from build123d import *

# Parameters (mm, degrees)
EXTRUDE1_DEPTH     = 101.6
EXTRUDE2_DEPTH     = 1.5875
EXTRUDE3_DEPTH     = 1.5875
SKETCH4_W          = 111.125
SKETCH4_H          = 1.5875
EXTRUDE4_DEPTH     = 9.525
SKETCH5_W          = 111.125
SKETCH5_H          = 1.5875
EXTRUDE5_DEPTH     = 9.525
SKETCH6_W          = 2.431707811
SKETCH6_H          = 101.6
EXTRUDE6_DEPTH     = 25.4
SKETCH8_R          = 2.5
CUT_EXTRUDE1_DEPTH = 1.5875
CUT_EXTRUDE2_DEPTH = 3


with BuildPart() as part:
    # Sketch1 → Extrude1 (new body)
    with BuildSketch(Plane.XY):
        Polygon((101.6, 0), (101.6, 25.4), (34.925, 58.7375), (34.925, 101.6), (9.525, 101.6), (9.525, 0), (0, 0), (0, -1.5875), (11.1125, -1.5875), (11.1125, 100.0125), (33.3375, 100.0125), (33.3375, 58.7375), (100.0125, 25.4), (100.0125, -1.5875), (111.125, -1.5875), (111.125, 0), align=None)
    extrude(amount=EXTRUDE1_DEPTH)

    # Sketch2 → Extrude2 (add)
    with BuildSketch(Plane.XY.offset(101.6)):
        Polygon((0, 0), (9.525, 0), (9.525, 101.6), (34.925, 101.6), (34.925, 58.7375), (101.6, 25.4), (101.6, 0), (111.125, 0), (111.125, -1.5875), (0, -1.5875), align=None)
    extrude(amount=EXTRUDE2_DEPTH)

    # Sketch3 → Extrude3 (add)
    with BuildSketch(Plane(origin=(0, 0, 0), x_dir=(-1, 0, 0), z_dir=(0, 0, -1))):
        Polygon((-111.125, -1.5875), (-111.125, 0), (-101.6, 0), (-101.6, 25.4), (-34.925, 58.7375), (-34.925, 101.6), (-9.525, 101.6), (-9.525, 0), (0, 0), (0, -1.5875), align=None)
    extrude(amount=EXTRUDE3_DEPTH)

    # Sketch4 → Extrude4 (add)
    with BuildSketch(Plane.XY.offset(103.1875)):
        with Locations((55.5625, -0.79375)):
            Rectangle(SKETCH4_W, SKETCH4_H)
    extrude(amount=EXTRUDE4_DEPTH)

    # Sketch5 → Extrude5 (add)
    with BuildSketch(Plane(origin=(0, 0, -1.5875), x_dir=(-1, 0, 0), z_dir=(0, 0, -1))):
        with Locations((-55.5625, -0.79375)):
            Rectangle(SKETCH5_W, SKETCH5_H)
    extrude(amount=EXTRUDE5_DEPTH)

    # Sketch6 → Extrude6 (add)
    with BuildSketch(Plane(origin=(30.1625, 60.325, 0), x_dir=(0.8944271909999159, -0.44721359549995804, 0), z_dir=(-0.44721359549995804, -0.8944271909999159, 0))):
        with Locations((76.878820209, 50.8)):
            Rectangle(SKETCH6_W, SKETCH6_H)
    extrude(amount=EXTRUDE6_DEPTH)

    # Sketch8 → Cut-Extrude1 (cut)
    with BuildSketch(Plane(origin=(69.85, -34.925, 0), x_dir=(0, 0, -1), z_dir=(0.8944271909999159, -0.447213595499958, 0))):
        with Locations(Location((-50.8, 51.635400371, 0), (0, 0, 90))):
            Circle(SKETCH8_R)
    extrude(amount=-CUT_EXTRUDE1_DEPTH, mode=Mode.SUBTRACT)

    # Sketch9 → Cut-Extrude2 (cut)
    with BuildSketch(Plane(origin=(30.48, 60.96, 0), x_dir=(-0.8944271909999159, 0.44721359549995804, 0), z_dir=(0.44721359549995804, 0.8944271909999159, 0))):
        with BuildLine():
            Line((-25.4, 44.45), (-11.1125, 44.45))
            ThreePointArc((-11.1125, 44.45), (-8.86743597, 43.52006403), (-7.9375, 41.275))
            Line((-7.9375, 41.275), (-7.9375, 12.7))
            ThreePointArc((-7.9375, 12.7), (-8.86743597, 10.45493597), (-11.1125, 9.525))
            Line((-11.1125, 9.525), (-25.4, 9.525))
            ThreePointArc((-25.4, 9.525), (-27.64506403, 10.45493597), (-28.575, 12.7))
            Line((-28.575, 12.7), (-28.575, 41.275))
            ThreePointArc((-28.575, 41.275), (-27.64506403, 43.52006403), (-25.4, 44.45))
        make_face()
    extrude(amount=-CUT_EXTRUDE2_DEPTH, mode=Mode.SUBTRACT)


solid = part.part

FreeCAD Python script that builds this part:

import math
import FreeCAD as App
import Part
import Sketcher

V = App.Vector
Q = App.Units.Quantity


def add_polygon(sketch, points):
    """Adds a closed chain of lines whose ends are joined by coincident constraints."""
    first, n = sketch.GeometryCount, len(points)
    for a, b in zip(points, points[1:] + points[:1]):
        sketch.addGeometry(Part.LineSegment(App.Vector(*a, 0), App.Vector(*b, 0)), False)
    for i in range(n):
        sketch.addConstraint(Sketcher.Constraint("Coincident", first + i, 2, first + (i + 1) % n, 1))

doc = App.newDocument("Part")
body = doc.addObject("PartDesign::Body", "Body")

sketch1 = doc.addObject("Sketcher::SketchObject", "Sketch")
body.addObject(sketch1)
sketch1.AttachmentSupport = (doc.XY_Plane, [""])
sketch1.MapMode = "FlatFace"
add_polygon(sketch1, [(101.6, 0), (101.6, 25.4), (34.9, 58.7), (34.9, 101.6), (9.5, 101.6), (9.5, 0), (0, 0), (0, -1.6), (11.1, -1.6), (11.1, 100), (33.3, 100), (33.3, 58.7), (100, 25.4), (100, -1.6), (111.1, -1.6), (111.1, 0)])
sketch1.addConstraint([
    Sketcher.Constraint("Vertical", 0),
    Sketcher.Constraint("Vertical", 2),
    Sketcher.Constraint("Horizontal", 3),
    Sketcher.Constraint("Vertical", 4),
    Sketcher.Constraint("Horizontal", 5),
    Sketcher.Constraint("Vertical", 6),
    Sketcher.Constraint("Horizontal", 7),
    Sketcher.Constraint("Vertical", 8),
    Sketcher.Constraint("Horizontal", 9),
    Sketcher.Constraint("Vertical", 10),
    Sketcher.Constraint("Vertical", 12),
    Sketcher.Constraint("Horizontal", 13),
    Sketcher.Constraint("Vertical", 14),
    Sketcher.Constraint("Horizontal", 15),
    Sketcher.Constraint("Coincident", 5, 2, -1, 1),
    Sketcher.Constraint("PointOnObject", 14, 2, -1),
    Sketcher.Constraint("Parallel", 1, 11),
    Sketcher.Constraint("Horizontal", 1, 2, 10, 2),
    Sketcher.Constraint("Horizontal", 0, 2, 11, 2),
    Sketcher.Constraint("Horizontal", 7, 2, 12, 2),
    Sketcher.Constraint("Equal", 7, 13),
    Sketcher.Constraint("Equal", 5, 15),
    Sketcher.Constraint("Equal", 3, 0),
    Sketcher.Constraint("Equal", 4, 8),
    Sketcher.Constraint("DistanceX", 3, 2, 3, 1, Q("1 in")),
    Sketcher.Constraint("DistanceY", 4, 2, 4, 1, Q("4 in")),
    Sketcher.Constraint("DistanceX", -1, 1, 0, 2, Q("4 in")),
    Sketcher.Constraint("DistanceX", 7, 2, 11, 2, Q("3.5 in")),
    Sketcher.Constraint("DistanceX", 5, 2, 5, 1, Q("0.375 in")),
    Sketcher.Constraint("DistanceY", 2, 1, 2, 2, Q("1.6875 in")),
    Sketcher.Constraint("DistanceY", 6, 2, 6, 1, Q("0.0625 in")),
])
pad1 = doc.addObject("PartDesign::Pad", "Pad")
body.addObject(pad1)
pad1.Profile = sketch1
pad1.Length = Q("4 in")

sketch2 = doc.addObject("Sketcher::SketchObject", "Sketch001")
body.addObject(sketch2)
sketch2.AttachmentSupport = (doc.XY_Plane, [""])
sketch2.MapMode = "FlatFace"
sketch2.AttachmentOffset = App.Placement(V(0, 0, 4 * 25.4), App.Rotation())
add_polygon(sketch2, [(9.5, 0), (0, 0), (0, -1.6), (111.1, -1.6), (111.1, 0), (101.6, 0), (101.6, 25.4), (34.9, 58.7), (34.9, 101.6), (9.5, 101.6)])
sketch2.addConstraint([
    Sketcher.Constraint("Horizontal", 0),
    Sketcher.Constraint("Vertical", 1),
    Sketcher.Constraint("Horizontal", 2),
    Sketcher.Constraint("Vertical", 3),
    Sketcher.Constraint("Horizontal", 4),
    Sketcher.Constraint("Vertical", 5),
    Sketcher.Constraint("Vertical", 7),
    Sketcher.Constraint("Horizontal", 8),
    Sketcher.Constraint("Vertical", 9),
    Sketcher.Constraint("Coincident", 0, 2, -1, 1),
    Sketcher.Constraint("PointOnObject", 3, 2, -1),
    Sketcher.Constraint("Equal", 0, 4),
    Sketcher.Constraint("Equal", 8, 5),
    Sketcher.Constraint("DistanceX", 8, 2, 8, 1, Q("1 in")),
    Sketcher.Constraint("DistanceY", 9, 2, 9, 1, Q("4 in")),
    Sketcher.Constraint("DistanceX", -1, 1, 4, 2, Q("4 in")),
    Sketcher.Constraint("DistanceX", 0, 2, 0, 1, Q("0.375 in")),
    Sketcher.Constraint("DistanceY", 1, 2, 1, 1, Q("0.0625 in")),
    Sketcher.Constraint("DistanceY", 7, 1, 7, 2, Q("1.6875 in")),
])
pad2 = doc.addObject("PartDesign::Pad", "Pad001")
body.addObject(pad2)
pad2.Profile = sketch2
pad2.Length = Q("0.0625 in")

sketch3 = doc.addObject("Sketcher::SketchObject", "Sketch002")
body.addObject(sketch3)
sketch3.AttachmentSupport = (doc.XY_Plane, [""])
sketch3.MapMode = "FlatFace"
add_polygon(sketch3, [(111.1, 0), (111.1, -1.6), (0, -1.6), (0, 0), (9.5, 0), (9.5, 101.6), (34.9, 101.6), (34.9, 58.7), (101.6, 25.4), (101.6, 0)])
sketch3.addConstraint([
    Sketcher.Constraint("Vertical", 0),
    Sketcher.Constraint("Horizontal", 1),
    Sketcher.Constraint("Vertical", 2),
    Sketcher.Constraint("Horizontal", 3),
    Sketcher.Constraint("Vertical", 4),
    Sketcher.Constraint("Horizontal", 5),
    Sketcher.Constraint("Vertical", 6),
    Sketcher.Constraint("Vertical", 8),
    Sketcher.Constraint("Horizontal", 9),
    Sketcher.Constraint("Coincident", 2, 2, -1, 1),
    Sketcher.Constraint("PointOnObject", 8, 2, -1),
    Sketcher.Constraint("Equal", 3, 9),
    Sketcher.Constraint("Equal", 5, 8),
    Sketcher.Constraint("DistanceX", 5, 1, 5, 2, Q("1 in")),
    Sketcher.Constraint("DistanceY", 4, 1, 4, 2, Q("4 in")),
    Sketcher.Constraint("DistanceX", -1, 1, 7, 2, Q("4 in")),
    Sketcher.Constraint("DistanceX", 1, 2, 1, 1, Q("4.375 in")),
    Sketcher.Constraint("DistanceY", 0, 2, 0, 1, Q("0.0625 in")),
    Sketcher.Constraint("DistanceY", 6, 2, 6, 1, Q("1.6875 in")),
])
pad3 = doc.addObject("PartDesign::Pad", "Pad002")
body.addObject(pad3)
pad3.Profile = sketch3
pad3.Length = Q("0.0625 in")
pad3.Reversed = True

sketch4 = doc.addObject("Sketcher::SketchObject", "Sketch003")
body.addObject(sketch4)
sketch4.AttachmentSupport = (doc.XY_Plane, [""])
sketch4.MapMode = "FlatFace"
sketch4.AttachmentOffset = App.Placement(V(0, 0, 4.0625 * 25.4), App.Rotation())
add_polygon(sketch4, [(0, 0), (0, -1.6), (111.1, -1.6), (111.1, 0)])
sketch4.addConstraint([
    Sketcher.Constraint("Vertical", 0),
    Sketcher.Constraint("Horizontal", 1),
    Sketcher.Constraint("Vertical", 2),
    Sketcher.Constraint("Horizontal", 3),
    Sketcher.Constraint("Coincident", 3, 2, -1, 1),
    Sketcher.Constraint("DistanceX", 1, 1, 1, 2, Q("4.375 in")),
    Sketcher.Constraint("DistanceY", 0, 2, 0, 1, Q("0.0625 in")),
])
pad4 = doc.addObject("PartDesign::Pad", "Pad003")
body.addObject(pad4)
pad4.Profile = sketch4
pad4.Length = Q("0.375 in")

sketch5 = doc.addObject("Sketcher::SketchObject", "Sketch004")
body.addObject(sketch5)
sketch5.AttachmentSupport = (doc.XY_Plane, [""])
sketch5.MapMode = "FlatFace"
sketch5.AttachmentOffset = App.Placement(V(0, 0, -0.0625 * 25.4), App.Rotation())
add_polygon(sketch5, [(111.1, 0), (111.1, -1.6), (0, -1.6), (0, 0)])
sketch5.addConstraint([
    Sketcher.Constraint("Vertical", 0),
    Sketcher.Constraint("Horizontal", 1),
    Sketcher.Constraint("Vertical", 2),
    Sketcher.Constraint("Horizontal", 3),
    Sketcher.Constraint("Coincident", 2, 2, -1, 1),
    Sketcher.Constraint("DistanceX", 1, 2, 1, 1, Q("4.375 in")),
    Sketcher.Constraint("DistanceY", 0, 2, 0, 1, Q("0.0625 in")),
])
pad5 = doc.addObject("PartDesign::Pad", "Pad004")
body.addObject(pad5)
pad5.Profile = sketch5
pad5.Length = Q("0.375 in")
pad5.Reversed = True

sketch6 = doc.addObject("Sketcher::SketchObject", "Sketch005")
body.addObject(sketch6)
sketch6.Placement = App.Placement(V(30.1625, 60.325, 0), App.Rotation(V(0.894427191, -0.447213595, 0), V(0, 0, 1), V(-0.447213595, -0.894427191, 0), "ZXY"))
add_polygon(sketch6, [(75.7, 101.6), (75.7, 0), (78.1, 0), (78.1, 101.6)])
sketch6.addConstraint([
    Sketcher.Constraint("Vertical", 0),
    Sketcher.Constraint("Horizontal", 1),
    Sketcher.Constraint("Vertical", 2),
    Sketcher.Constraint("Horizontal", 3),
    Sketcher.Constraint("PointOnObject", 0, 2, -1),
    Sketcher.Constraint("DistanceY", 0, 2, 0, 1, Q("4 in")),
    Sketcher.Constraint("DistanceX", 1, 1, 1, 2, 2.431708),
    Sketcher.Constraint("DistanceX", -1, 1, 0, 2, 75.662966),
])
pad6 = doc.addObject("PartDesign::Pad", "Pad005")
body.addObject(pad6)
pad6.Profile = sketch6
pad6.Length = Q("1 in")

sketch7 = doc.addObject("Sketcher::SketchObject", "Sketch006")
body.addObject(sketch7)
sketch7.Placement = App.Placement(V(69.85, -34.925, 0), App.Rotation(V(0, 0, -1), V(0.447213595, 0.894427191, 0), V(0.894427191, -0.447213595, 0), "ZXY"))
sketch7.addGeometry(Part.Circle(V(-50.8, 51.6, 0), V(0, 0, 1), 2.5), False)
sketch7.addConstraint([
    Sketcher.Constraint("DistanceX", 0, 3, -1, 1, Q("2 in")),
    Sketcher.Constraint("Diameter", 0, 5.0),
    Sketcher.Constraint("DistanceY", -1, 1, 0, 3, 51.6354),
])
pocket1 = doc.addObject("PartDesign::Pocket", "Pocket")
body.addObject(pocket1)
pocket1.Profile = sketch7
pocket1.Length = Q("0.0625 in")

sketch8 = doc.addObject("Sketcher::SketchObject", "Sketch007")
body.addObject(sketch8)
sketch8.Placement = App.Placement(V(30.48, 60.96, 0), App.Rotation(V(-0.894427191, 0.447213595, 0), V(0, 0, 1), V(0.447213595, 0.894427191, 0), "ZXY"))
sketch8.addGeometry([
    Part.LineSegment(V(-11.1, 44.4, 0), V(-25.4, 44.4, 0)),
    Part.ArcOfCircle(Part.Circle(V(-25.4, 41.3, 0), V(0, 0, 1), 3.2), math.radians(90), math.radians(180)),
    Part.LineSegment(V(-28.6, 41.3, 0), V(-28.6, 12.7, 0)),
    Part.ArcOfCircle(Part.Circle(V(-25.4, 12.7, 0), V(0, 0, 1), 3.2), math.radians(-180), math.radians(-90)),
    Part.LineSegment(V(-25.4, 9.5, 0), V(-11.1, 9.5, 0)),
    Part.ArcOfCircle(Part.Circle(V(-11.1, 12.7, 0), V(0, 0, 1), 3.2), math.radians(-90), math.radians(0)),
    Part.LineSegment(V(-7.9, 12.7, 0), V(-7.9, 41.3, 0)),
    Part.ArcOfCircle(Part.Circle(V(-11.1, 41.3, 0), V(0, 0, 1), 3.2), math.radians(0), math.radians(90)),
], False)
sketch8.addConstraint([
    Sketcher.Constraint("Tangent", 0, 2, 1, 1),
    Sketcher.Constraint("Tangent", 1, 2, 2, 1),
    Sketcher.Constraint("Tangent", 2, 2, 3, 1),
    Sketcher.Constraint("Tangent", 3, 2, 4, 1),
    Sketcher.Constraint("Tangent", 4, 2, 5, 1),
    Sketcher.Constraint("Tangent", 5, 2, 6, 1),
    Sketcher.Constraint("Tangent", 6, 2, 7, 1),
    Sketcher.Constraint("Tangent", 7, 2, 0, 1),
    Sketcher.Constraint("Horizontal", 0),
    Sketcher.Constraint("Vertical", 2),
    Sketcher.Constraint("Horizontal", 4),
    Sketcher.Constraint("Vertical", 6),
    Sketcher.Constraint("Equal", 1, 3),
    Sketcher.Constraint("Equal", 3, 5),
    Sketcher.Constraint("Equal", 5, 7),
    Sketcher.Constraint("DistanceX", 1, 3, -1, 1, Q("1 in")),
    Sketcher.Constraint("Radius", 1, Q("0.125 in")),
    Sketcher.Constraint("DistanceY", -1, 1, 3, 3, Q("0.5 in")),
    Sketcher.Constraint("DistanceX", 0, 2, 0, 1, Q("0.5625 in")),
    Sketcher.Constraint("DistanceY", 2, 2, 2, 1, Q("1.125 in")),
])
pocket2 = doc.addObject("PartDesign::Pocket", "Pocket001")
body.addObject(pocket2)
pocket2.Profile = sketch8
pocket2.Length = 3

doc.recompute()
